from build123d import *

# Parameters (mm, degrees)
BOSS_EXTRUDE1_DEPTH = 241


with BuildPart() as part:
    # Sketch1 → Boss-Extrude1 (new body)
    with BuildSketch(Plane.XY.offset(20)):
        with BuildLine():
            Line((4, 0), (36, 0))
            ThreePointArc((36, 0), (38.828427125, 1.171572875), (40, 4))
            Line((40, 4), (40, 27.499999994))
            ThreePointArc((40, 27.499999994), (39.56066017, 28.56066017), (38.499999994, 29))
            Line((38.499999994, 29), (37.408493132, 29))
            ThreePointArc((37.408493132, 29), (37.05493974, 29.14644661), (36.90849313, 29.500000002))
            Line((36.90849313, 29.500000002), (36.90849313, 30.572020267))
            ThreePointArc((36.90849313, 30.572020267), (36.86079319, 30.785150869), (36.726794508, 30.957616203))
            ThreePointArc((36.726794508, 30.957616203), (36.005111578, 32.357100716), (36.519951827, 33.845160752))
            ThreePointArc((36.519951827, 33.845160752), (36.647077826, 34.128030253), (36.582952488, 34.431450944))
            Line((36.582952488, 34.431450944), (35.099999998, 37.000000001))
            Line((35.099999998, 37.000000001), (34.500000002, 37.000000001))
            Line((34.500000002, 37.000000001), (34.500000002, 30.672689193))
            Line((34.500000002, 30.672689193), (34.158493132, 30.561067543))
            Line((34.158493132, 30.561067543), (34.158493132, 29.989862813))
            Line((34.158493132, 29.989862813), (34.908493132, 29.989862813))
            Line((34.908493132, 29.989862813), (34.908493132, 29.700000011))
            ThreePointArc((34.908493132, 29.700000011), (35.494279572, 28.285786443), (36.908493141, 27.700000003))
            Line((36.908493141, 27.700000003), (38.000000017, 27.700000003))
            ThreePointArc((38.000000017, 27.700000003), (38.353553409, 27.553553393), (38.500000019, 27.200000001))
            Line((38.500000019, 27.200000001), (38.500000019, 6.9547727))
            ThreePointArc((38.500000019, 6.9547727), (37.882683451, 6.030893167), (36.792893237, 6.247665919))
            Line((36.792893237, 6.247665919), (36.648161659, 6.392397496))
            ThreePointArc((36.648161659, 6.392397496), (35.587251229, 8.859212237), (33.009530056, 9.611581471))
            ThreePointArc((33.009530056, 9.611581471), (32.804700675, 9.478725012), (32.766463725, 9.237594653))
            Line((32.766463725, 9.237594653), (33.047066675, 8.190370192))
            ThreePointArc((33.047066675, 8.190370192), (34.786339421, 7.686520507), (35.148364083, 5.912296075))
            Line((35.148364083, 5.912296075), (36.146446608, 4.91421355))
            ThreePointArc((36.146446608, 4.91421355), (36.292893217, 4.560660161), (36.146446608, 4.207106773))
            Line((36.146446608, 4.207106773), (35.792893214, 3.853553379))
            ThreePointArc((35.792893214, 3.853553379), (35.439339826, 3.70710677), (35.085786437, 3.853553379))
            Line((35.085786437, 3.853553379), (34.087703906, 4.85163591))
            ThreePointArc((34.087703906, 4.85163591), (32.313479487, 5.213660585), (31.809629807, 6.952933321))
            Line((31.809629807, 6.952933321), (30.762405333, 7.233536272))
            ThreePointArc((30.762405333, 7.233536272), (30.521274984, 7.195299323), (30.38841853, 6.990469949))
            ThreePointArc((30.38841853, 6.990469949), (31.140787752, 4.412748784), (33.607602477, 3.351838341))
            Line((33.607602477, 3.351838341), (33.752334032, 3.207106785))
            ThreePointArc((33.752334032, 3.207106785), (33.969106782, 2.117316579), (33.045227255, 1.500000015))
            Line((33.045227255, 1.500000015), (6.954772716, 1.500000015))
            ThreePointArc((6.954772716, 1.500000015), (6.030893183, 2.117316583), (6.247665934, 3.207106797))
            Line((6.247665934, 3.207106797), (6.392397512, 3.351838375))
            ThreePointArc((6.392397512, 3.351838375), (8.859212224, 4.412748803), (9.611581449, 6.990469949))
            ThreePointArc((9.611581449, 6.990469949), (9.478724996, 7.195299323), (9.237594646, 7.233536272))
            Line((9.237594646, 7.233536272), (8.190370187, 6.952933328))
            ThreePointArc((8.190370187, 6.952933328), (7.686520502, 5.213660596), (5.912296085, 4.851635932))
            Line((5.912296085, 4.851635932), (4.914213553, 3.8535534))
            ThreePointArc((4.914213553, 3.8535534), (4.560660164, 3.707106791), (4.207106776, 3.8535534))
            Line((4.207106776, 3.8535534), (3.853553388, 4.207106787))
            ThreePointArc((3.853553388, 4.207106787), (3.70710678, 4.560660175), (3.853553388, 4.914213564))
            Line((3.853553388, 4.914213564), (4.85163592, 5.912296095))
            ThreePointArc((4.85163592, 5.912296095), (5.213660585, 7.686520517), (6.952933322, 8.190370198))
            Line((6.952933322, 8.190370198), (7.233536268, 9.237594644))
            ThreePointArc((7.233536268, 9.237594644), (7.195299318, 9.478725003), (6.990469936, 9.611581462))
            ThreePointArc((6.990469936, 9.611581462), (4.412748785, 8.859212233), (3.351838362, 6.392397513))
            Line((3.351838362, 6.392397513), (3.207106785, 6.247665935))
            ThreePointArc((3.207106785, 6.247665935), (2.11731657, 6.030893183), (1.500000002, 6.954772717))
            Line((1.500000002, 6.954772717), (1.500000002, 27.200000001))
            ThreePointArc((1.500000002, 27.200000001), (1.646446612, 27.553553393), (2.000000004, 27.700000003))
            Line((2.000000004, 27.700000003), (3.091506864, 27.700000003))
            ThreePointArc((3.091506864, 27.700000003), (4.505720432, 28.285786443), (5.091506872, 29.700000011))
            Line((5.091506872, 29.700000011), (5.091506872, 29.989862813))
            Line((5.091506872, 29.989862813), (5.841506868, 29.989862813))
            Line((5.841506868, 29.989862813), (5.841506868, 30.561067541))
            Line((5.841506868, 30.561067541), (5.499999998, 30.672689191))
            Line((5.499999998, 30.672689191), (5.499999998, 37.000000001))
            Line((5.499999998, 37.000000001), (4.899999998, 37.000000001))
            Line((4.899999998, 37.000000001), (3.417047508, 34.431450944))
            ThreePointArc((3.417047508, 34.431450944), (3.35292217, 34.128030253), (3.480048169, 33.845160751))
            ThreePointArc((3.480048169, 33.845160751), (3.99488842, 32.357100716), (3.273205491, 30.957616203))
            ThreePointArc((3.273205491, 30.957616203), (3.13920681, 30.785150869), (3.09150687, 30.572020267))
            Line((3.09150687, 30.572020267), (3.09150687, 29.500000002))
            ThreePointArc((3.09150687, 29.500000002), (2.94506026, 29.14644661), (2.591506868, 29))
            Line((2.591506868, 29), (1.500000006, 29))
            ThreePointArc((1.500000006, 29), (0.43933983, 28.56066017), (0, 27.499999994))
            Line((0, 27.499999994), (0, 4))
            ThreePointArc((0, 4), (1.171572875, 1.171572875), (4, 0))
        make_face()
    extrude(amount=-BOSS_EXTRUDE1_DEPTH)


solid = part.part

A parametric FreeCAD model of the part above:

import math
import FreeCAD as App
import Part
import Sketcher
from FreeCAD import Vector
Q = App.Units.Quantity

doc = App.newDocument("Part")
body = doc.addObject("PartDesign::Body", "Body")

# Sketch on XY plane
sketch1 = body.newObject("Sketcher::SketchObject", "Sketch")
sketch1.AttachmentSupport = (doc.getObject("XY_Plane"), [""])
sketch1.MapMode = "FlatFace"
sketch1.AttachmentOffset = App.Placement(Vector(0, 0, 20), App.Rotation())
sketch1.addGeometry([
    Part.LineSegment(Vector(4, 0, 0), Vector(36, 0, 0)),  # 0
    Part.ArcOfCircle(Part.Circle(Vector(36, 4, 0), Vector(0, 0, 1), 4), math.radians(-90), math.radians(0)),  # 1
    Part.LineSegment(Vector(40, 4, 0), Vector(40, 27.5, 0)),  # 2
    Part.ArcOfCircle(Part.Circle(Vector(38.5, 27.5, 0), Vector(0, 0, 1), 1.5), math.radians(0), math.radians(90)),  # 3
    Part.LineSegment(Vector(38.5, 29, 0), Vector(37.41, 29, 0)),  # 4
    Part.ArcOfCircle(Part.Circle(Vector(37.41, 29.5, 0), Vector(0, 0, 1), 0.5), math.radians(180), math.radians(270)),  # 5
    Part.LineSegment(Vector(36.91, 29.5, 0), Vector(36.91, 30.57, 0)),  # 6
    Part.ArcOfCircle(Part.Circle(Vector(36.41, 30.57, 0), Vector(0, 0, 1), 0.5), math.radians(0), math.radians(50)),  # 7
    Part.ArcOfCircle(Part.Circle(Vector(38, 32.5, 0), Vector(0, 0, 1), 2), math.radians(138), math.radians(230)),  # 8
    Part.ArcOfCircle(Part.Circle(Vector(36.15, 34.18, 0), Vector(0, 0, 1), 0.5), math.radians(-42), math.radians(30)),  # 9
    Part.LineSegment(Vector(36.58, 34.43, 0), Vector(35.1, 37, 0)),  # 10
    Part.LineSegment(Vector(35.1, 37, 0), Vector(34.5, 37, 0)),  # 11
    Part.LineSegment(Vector(34.5, 37, 0), Vector(34.5, 30.67, 0)),  # 12
    Part.LineSegment(Vector(34.5, 30.67, 0), Vector(34.16, 30.56, 0)),  # 13
    Part.LineSegment(Vector(34.16, 30.56, 0), Vector(34.16, 29.99, 0)),  # 14
    Part.LineSegment(Vector(34.16, 29.99, 0), Vector(34.91, 29.99, 0)),  # 15
    Part.LineSegment(Vector(34.91, 29.99, 0), Vector(34.91, 29.7, 0)),  # 16
    Part.ArcOfCircle(Part.Circle(Vector(36.91, 29.7, 0), Vector(0, 0, 1), 2), math.radians(180), math.radians(270)),  # 17
    Part.LineSegment(Vector(36.91, 27.7, 0), Vector(38, 27.7, 0)),  # 18
    Part.ArcOfCircle(Part.Circle(Vector(38, 27.2, 0), Vector(0, 0, 1), 0.5), math.radians(0), math.radians(90)),  # 19
    Part.LineSegment(Vector(38.5, 27.2, 0), Vector(38.5, 6.95, 0)),  # 20
    Part.ArcOfCircle(Part.Circle(Vector(37.5, 6.95, 0), Vector(0, 0, 1), 1), math.radians(-135), math.radians(0)),  # 21
    Part.LineSegment(Vector(36.79, 6.25, 0), Vector(36.65, 6.39, 0)),  # 22
    Part.ArcOfCircle(Part.Circle(Vector(33.5, 6.5, 0), Vector(0, 0, 1), 3.15), math.radians(-2), math.radians(99)),  # 23
    Part.ArcOfCircle(Part.Circle(Vector(33.06, 9.32, 0), Vector(0, 0, 1), 0.3), math.radians(99), math.radians(195)),  # 24
    Part.LineSegment(Vector(32.77, 9.24, 0), Vector(33.05, 8.19, 0)),  # 25
    Part.ArcOfCircle(Part.Circle(Vector(33.5, 6.5, 0), Vector(0, 0, 1), 1.75), math.radians(-20), math.radians(105)),  # 26
    Part.LineSegment(Vector(35.15, 5.91, 0), Vector(36.15, 4.91, 0)),  # 27
    Part.ArcOfCircle(Part.Circle(Vector(35.79, 4.56, 0), Vector(0, 0, 1), 0.5), math.radians(-45), math.radians(45)),  # 28
    Part.LineSegment(Vector(36.15, 4.21, 0), Vector(35.79, 3.85, 0)),  # 29
    Part.ArcOfCircle(Part.Circle(Vector(35.44, 4.21, 0), Vector(0, 0, 1), 0.5), math.radians(-135), math.radians(-45)),  # 30
    Part.LineSegment(Vector(35.09, 3.85, 0), Vector(34.09, 4.85, 0)),  # 31
    Part.ArcOfCircle(Part.Circle(Vector(33.5, 6.5, 0), Vector(0, 0, 1), 1.75), math.radians(165), math.radians(290)),  # 32
    Part.LineSegment(Vector(31.81, 6.95, 0), Vector(30.76, 7.23, 0)),  # 33
    Part.ArcOfCircle(Part.Circle(Vector(30.68, 6.94, 0), Vector(0, 0, 1), 0.3), math.radians(75), math.radians(171)),  # 34
    Part.ArcOfCircle(Part.Circle(Vector(33.5, 6.5, 0), Vector(0, 0, 1), 3.15), math.radians(171), math.radians(272)),  # 35
    Part.LineSegment(Vector(33.61, 3.35, 0), Vector(33.75, 3.21, 0)),  # 36
    Part.ArcOfCircle(Part.Circle(Vector(33.05, 2.5, 0), Vector(0, 0, 1), 1), math.radians(-90), math.radians(45)),  # 37
    Part.LineSegment(Vector(33.05, 1.5, 0), Vector(6.95, 1.5, 0)),  # 38
    Part.ArcOfCircle(Part.Circle(Vector(6.95, 2.5, 0), Vector(0, 0, 1), 1), math.radians(135), math.radians(270)),  # 39
    Part.LineSegment(Vector(6.25, 3.21, 0), Vector(6.39, 3.35, 0)),  # 40
    Part.ArcOfCircle(Part.Circle(Vector(6.5, 6.5, 0), Vector(0, 0, 1), 3.15), math.radians(-92), math.radians(9)),  # 41
    Part.ArcOfCircle(Part.Circle(Vector(9.32, 6.94, 0), Vector(0, 0, 1), 0.3), math.radians(9), math.radians(105)),  # 42
    Part.LineSegment(Vector(9.24, 7.23, 0), Vector(8.19, 6.95, 0)),  # 43
    Part.ArcOfCircle(Part.Circle(Vector(6.5, 6.5, 0), Vector(0, 0, 1), 1.75), math.radians(-110), math.radians(15)),  # 44
    Part.LineSegment(Vector(5.91, 4.85, 0), Vector(4.91, 3.85, 0)),  # 45
    Part.ArcOfCircle(Part.Circle(Vector(4.56, 4.21, 0), Vector(0, 0, 1), 0.5), math.radians(-135), math.radians(-45)),  # 46
    Part.LineSegment(Vector(4.21, 3.85, 0), Vector(3.85, 4.21, 0)),  # 47
    Part.ArcOfCircle(Part.Circle(Vector(4.21, 4.56, 0), Vector(0, 0, 1), 0.5), math.radians(135), math.radians(225)),  # 48
    Part.LineSegment(Vector(3.85, 4.91, 0), Vector(4.85, 5.91, 0)),  # 49
    Part.ArcOfCircle(Part.Circle(Vector(6.5, 6.5, 0), Vector(0, 0, 1), 1.75), math.radians(75), math.radians(200)),  # 50
    Part.LineSegment(Vector(6.95, 8.19, 0), Vector(7.23, 9.24, 0)),  # 51
    Part.ArcOfCircle(Part.Circle(Vector(6.94, 9.32, 0), Vector(0, 0, 1), 0.3), math.radians(-15), math.radians(81)),  # 52
    Part.ArcOfCircle(Part.Circle(Vector(6.5, 6.5, 0), Vector(0, 0, 1), 3.15), math.radians(81), math.radians(182)),  # 53
    Part.LineSegment(Vector(3.35, 6.39, 0), Vector(3.21, 6.25, 0)),  # 54
    Part.ArcOfCircle(Part.Circle(Vector(2.5, 6.95, 0), Vector(0, 0, 1), 1), math.radians(180), math.radians(315)),  # 55
    Part.LineSegment(Vector(1.5, 6.95, 0), Vector(1.5, 27.2, 0)),  # 56
    Part.ArcOfCircle(Part.Circle(Vector(2, 27.2, 0), Vector(0, 0, 1), 0.5), math.radians(90), math.radians(180)),  # 57
    Part.LineSegment(Vector(2, 27.7, 0), Vector(3.09, 27.7, 0)),  # 58
    Part.ArcOfCircle(Part.Circle(Vector(3.09, 29.7, 0), Vector(0, 0, 1), 2), math.radians(-90), math.radians(0)),  # 59
    Part.LineSegment(Vector(5.09, 29.7, 0), Vector(5.09, 29.99, 0)),  # 60
    Part.LineSegment(Vector(5.09, 29.99, 0), Vector(5.84, 29.99, 0)),  # 61
    Part.LineSegment(Vector(5.84, 29.99, 0), Vector(5.84, 30.56, 0)),  # 62
    Part.LineSegment(Vector(5.84, 30.56, 0), Vector(5.5, 30.67, 0)),  # 63
    Part.LineSegment(Vector(5.5, 30.67, 0), Vector(5.5, 37, 0)),  # 64
    Part.LineSegment(Vector(5.5, 37, 0), Vector(4.9, 37, 0)),  # 65
    Part.LineSegment(Vector(4.9, 37, 0), Vector(3.42, 34.43, 0)),  # 66
    Part.ArcOfCircle(Part.Circle(Vector(3.85, 34.18, 0), Vector(0, 0, 1), 0.5), math.radians(150), math.radians(222)),  # 67
    Part.ArcOfCircle(Part.Circle(Vector(2, 32.5, 0), Vector(0, 0, 1), 2), math.radians(-50), math.radians(42)),  # 68
    Part.ArcOfCircle(Part.Circle(Vector(3.59, 30.57, 0), Vector(0, 0, 1), 0.5), math.radians(130), math.radians(180)),  # 69
    Part.LineSegment(Vector(3.09, 30.57, 0), Vector(3.09, 29.5, 0)),  # 70
    Part.ArcOfCircle(Part.Circle(Vector(2.59, 29.5, 0), Vector(0, 0, 1), 0.5), math.radians(-90), math.radians(0)),  # 71
    Part.LineSegment(Vector(2.59, 29, 0), Vector(1.5, 29, 0)),  # 72
    Part.ArcOfCircle(Part.Circle(Vector(1.5, 27.5, 0), Vector(0, 0, 1), 1.5), math.radians(90), math.radians(180)),  # 73
    Part.LineSegment(Vector(0, 27.5, 0), Vector(0, 4, 0)),  # 74
    Part.ArcOfCircle(Part.Circle(Vector(4, 4, 0), Vector(0, 0, 1), 4), math.radians(180), math.radians(270)),  # 75
], False)
sketch1.addConstraint([
    Sketcher.Constraint("Tangent", 0, 2, 1, 1),
    Sketcher.Constraint("Tangent", 1, 2, 2, 1),
    Sketcher.Constraint("Tangent", 2, 2, 3, 1),
    Sketcher.Constraint("Tangent", 3, 2, 4, 1),
    Sketcher.Constraint("Tangent", 4, 2, 5, 2),
    Sketcher.Constraint("Tangent", 5, 1, 6, 1),
    Sketcher.Constraint("Tangent", 6, 2, 7, 1),
    Sketcher.Constraint("Tangent", 7, 2, 8, 2),
    Sketcher.Constraint("Tangent", 8, 1, 9, 1),
    Sketcher.Constraint("Tangent", 9, 2, 10, 1),
    Sketcher.Constraint("Coincident", 10, 2, 11, 1),
    Sketcher.Constraint("Coincident", 11, 2, 12, 1),
    Sketcher.Constraint("Coincident", 12, 2, 13, 1),
    Sketcher.Constraint("Coincident", 13, 2, 14, 1),
    Sketcher.Constraint("Coincident", 14, 2, 15, 1),
    Sketcher.Constraint("Coincident", 15, 2, 16, 1),
    Sketcher.Constraint("Tangent", 16, 2, 17, 1),
    Sketcher.Constraint("Tangent", 17, 2, 18, 1),
    Sketcher.Constraint("Tangent", 18, 2, 19, 2),
    Sketcher.Constraint("Tangent", 19, 1, 20, 1),
    Sketcher.Constraint("Tangent", 20, 2, 21, 2),
    Sketcher.Constraint("Tangent", 21, 1, 22, 1),
    Sketcher.Constraint("Coincident", 22, 2, 23, 1),
    Sketcher.Constraint("Tangent", 23, 2, 24, 1),
    Sketcher.Constraint("Tangent", 24, 2, 25, 1),
    Sketcher.Constraint("Coincident", 25, 2, 26, 2),
    Sketcher.Constraint("Coincident", 26, 1, 27, 1),
    Sketcher.Constraint("Tangent", 27, 2, 28, 2),
    Sketcher.Constraint("Tangent", 28, 1, 29, 1),
    Sketcher.Constraint("Tangent", 29, 2, 30, 2),
    Sketcher.Constraint("Tangent", 30, 1, 31, 1),
    Sketcher.Constraint("Coincident", 31, 2, 32, 2),
    Sketcher.Constraint("Coincident", 32, 1, 33, 1),
    Sketcher.Constraint("Tangent", 33, 2, 34, 1),
    Sketcher.Constraint("Tangent", 34, 2, 35, 1),
    Sketcher.Constraint("Coincident", 35, 2, 36, 1),
    Sketcher.Constraint("Tangent", 36, 2, 37, 2),
    Sketcher.Constraint("Tangent", 37, 1, 38, 1),
    Sketcher.Constraint("Tangent", 38, 2, 39, 2),
    Sketcher.Constraint("Tangent", 39, 1, 40, 1),
    Sketcher.Constraint("Coincident", 40, 2, 41, 1),
    Sketcher.Constraint("Tangent", 41, 2, 42, 1),
    Sketcher.Constraint("Tangent", 42, 2, 43, 1),
    Sketcher.Constraint("Coincident", 43, 2, 44, 2),
    Sketcher.Constraint("Coincident", 44, 1, 45, 1),
    Sketcher.Constraint("Tangent", 45, 2, 46, 2),
    Sketcher.Constraint("Tangent", 46, 1, 47, 1),
    Sketcher.Constraint("Tangent", 47, 2, 48, 2),
    Sketcher.Constraint("Tangent", 48, 1, 49, 1),
    Sketcher.Constraint("Coincident", 49, 2, 50, 2),
    Sketcher.Constraint("Coincident", 50, 1, 51, 1),
    Sketcher.Constraint("Tangent", 51, 2, 52, 1),
    Sketcher.Constraint("Tangent", 52, 2, 53, 1),
    Sketcher.Constraint("Coincident", 53, 2, 54, 1),
    Sketcher.Constraint("Tangent", 54, 2, 55, 2),
    Sketcher.Constraint("Tangent", 55, 1, 56, 1),
    Sketcher.Constraint("Tangent", 56, 2, 57, 2),
    Sketcher.Constraint("Tangent", 57, 1, 58, 1),
    Sketcher.Constraint("Tangent", 58, 2, 59, 1),
    Sketcher.Constraint("Tangent", 59, 2, 60, 1),
    Sketcher.Constraint("Coincident", 60, 2, 61, 1),
    Sketcher.Constraint("Coincident", 61, 2, 62, 1),
    Sketcher.Constraint("Coincident", 62, 2, 63, 1),
    Sketcher.Constraint("Coincident", 63, 2, 64, 1),
    Sketcher.Constraint("Coincident", 64, 2, 65, 1),
    Sketcher.Constraint("Coincident", 65, 2, 66, 1),
    Sketcher.Constraint("Tangent", 66, 2, 67, 1),
    Sketcher.Constraint("Tangent", 67, 2, 68, 2),
    Sketcher.Constraint("Tangent", 68, 1, 69, 1),
    Sketcher.Constraint("Tangent", 69, 2, 70, 1),
    Sketcher.Constraint("Tangent", 70, 2, 71, 2),
    Sketcher.Constraint("Tangent", 71, 1, 72, 1),
    Sketcher.Constraint("Tangent", 72, 2, 73, 1),
    Sketcher.Constraint("Tangent", 73, 2, 74, 1),
    Sketcher.Constraint("Tangent", 74, 2, 75, 1),
    Sketcher.Constraint("Tangent", 75, 2, 0, 1),
    Sketcher.Constraint("Horizontal", 0),
    Sketcher.Constraint("Vertical", 2),
    Sketcher.Constraint("Horizontal", 4),
    Sketcher.Constraint("Vertical", 6),
    Sketcher.Constraint("Horizontal", 11),
    Sketcher.Constraint("Vertical", 12),
    Sketcher.Constraint("Vertical", 14),
    Sketcher.Constraint("Horizontal", 15),
    Sketcher.Constraint("Vertical", 16),
    Sketcher.Constraint("Horizontal", 18),
    Sketcher.Constraint("Vertical", 20),
    Sketcher.Constraint("Horizontal", 38),
    Sketcher.Constraint("Vertical", 56),
    Sketcher.Constraint("Horizontal", 58),
    Sketcher.Constraint("Vertical", 60),
    Sketcher.Constraint("Horizontal", 61),
    Sketcher.Constraint("Vertical", 62),
    Sketcher.Constraint("Vertical", 64),
    Sketcher.Constraint("Horizontal", 65),
    Sketcher.Constraint("Vertical", 70),
    Sketcher.Constraint("Horizontal", 72),
    Sketcher.Constraint("Vertical", 74),
    Sketcher.Constraint("Coincident", 26, 3, 23, 3),
    Sketcher.Constraint("Coincident", 32, 3, 23, 3),
    Sketcher.Constraint("Coincident", 35, 3, 23, 3),
    Sketcher.Constraint("Coincident", 44, 3, 41, 3),
    Sketcher.Constraint("Coincident", 50, 3, 41, 3),
    Sketcher.Constraint("Coincident", 53, 3, 41, 3),
    Sketcher.Constraint("Equal", 5, 7),
    Sketcher.Constraint("Equal", 7, 9),
    Sketcher.Constraint("Equal", 8, 17),
    Sketcher.Constraint("Equal", 9, 19),
    Sketcher.Constraint("Equal", 19, 28),
    Sketcher.Constraint("Equal", 28, 30),
    Sketcher.Constraint("Equal", 26, 32),
    Sketcher.Constraint("Equal", 24, 34),
    Sketcher.Constraint("Equal", 23, 35),
    Sketcher.Constraint("Equal", 21, 37),
    Sketcher.Constraint("Equal", 37, 39),
    Sketcher.Constraint("Equal", 35, 41),
    Sketcher.Constraint("Equal", 34, 42),
    Sketcher.Constraint("Equal", 32, 44),
    Sketcher.Constraint("Equal", 30, 46),
    Sketcher.Constraint("Equal", 46, 48),
    Sketcher.Constraint("Equal", 44, 50),
    Sketcher.Constraint("Equal", 42, 52),
    Sketcher.Constraint("Equal", 41, 53),
    Sketcher.Constraint("Equal", 39, 55),
    Sketcher.Constraint("Equal", 48, 57),
    Sketcher.Constraint("Equal", 17, 59),
    Sketcher.Constraint("Equal", 57, 67),
    Sketcher.Constraint("Equal", 59, 68),
    Sketcher.Constraint("Equal", 67, 69),
    Sketcher.Constraint("Equal", 69, 71),
    Sketcher.Constraint("Equal", 3, 73),
    Sketcher.Constraint("Equal", 1, 75),
    Sketcher.Constraint("PointOnObject", 0, 2, -1),
    Sketcher.Constraint("PointOnObject", 73, 2, -2),
    Sketcher.Constraint("Parallel", 22, 27),
    Sketcher.Constraint("Perpendicular", 27, 29),
    Sketcher.Constraint("Perpendicular", 29, 31),
    Sketcher.Constraint("Parallel", 31, 36),
    Sketcher.Constraint("Perpendicular", 36, 40),
    Sketcher.Constraint("Perpendicular", 25, 43),
    Sketcher.Constraint("Parallel", 40, 45),
    Sketcher.Constraint("Perpendicular", 45, 47),
    Sketcher.Constraint("Perpendicular", 47, 49),
    Sketcher.Constraint("Perpendicular", 33, 51),
    Sketcher.Constraint("Parallel", 49, 54),
    Sketcher.Constraint("Horizontal", 35, 3, 41, 3),
    Sketcher.Constraint("Horizontal", 34, 3, 42, 3),
    Sketcher.Constraint("Horizontal", 30, 3, 46, 3),
    Sketcher.Constraint("Horizontal", 28, 3, 48, 3),
    Sketcher.Constraint("Horizontal", 24, 3, 52, 3),
    Sketcher.Constraint("Horizontal", 21, 3, 55, 3),
    Sketcher.Constraint("Horizontal", 19, 3, 57, 3),
    Sketcher.Constraint("Horizontal", 9, 3, 67, 3),
    Sketcher.Constraint("Horizontal", 8, 3, 68, 3),
    Sketcher.Constraint("Horizontal", 7, 3, 69, 3),
    Sketcher.Constraint("Horizontal", 5, 3, 71, 3),
    Sketcher.Constraint("Horizontal", 46, 3, 28, 1),
    Sketcher.Constraint("Horizontal", 29, 2, 30, 1),
    Sketcher.Constraint("Horizontal", 35, 2, 40, 2),
    Sketcher.Constraint("Horizontal", 33, 2, 42, 2),
    Sketcher.Constraint("Horizontal", 31, 2, 44, 1),
    Sketcher.Constraint("Horizontal", 22, 2, 53, 2),
    Sketcher.Constraint("Horizontal", 15, 2, 60, 2),
    Sketcher.Constraint("Horizontal", 13, 2, 62, 2),
    Sketcher.Constraint("Horizontal", 12, 2, 63, 2),
    Sketcher.Constraint("Horizontal", 11, 2, 64, 2),
    Sketcher.Constraint("Horizontal", 9, 2, 66, 2),
    Sketcher.Constraint("Vertical", 8, 3, 19, 3),
    Sketcher.Constraint("Vertical", 57, 3, 68, 3),
    Sketcher.Constraint("Vertical", 17, 3, 5, 1),
    Sketcher.Constraint("Vertical", 3, 2, 19, 1),
    Sketcher.Constraint("Vertical", 73, 3, 55, 1),
    Sketcher.Constraint("Vertical", 58, 2, 69, 2),
    Sketcher.Constraint("Equal", 15, 61),
    Sketcher.Constraint("Equal", 11, 65),
    Sketcher.Constraint("Equal", 27, 31),
    Sketcher.Constraint("Equal", 25, 33),
    Sketcher.Constraint("Equal", 22, 36),
    Sketcher.Constraint("Radius", 1, Q("4 mm")),
    Sketcher.Constraint("Radius", 8, Q("2 mm")),
    Sketcher.Constraint("Radius", 21, Q("1 mm")),
    Sketcher.Constraint("Radius", 3, Q("1.5 mm")),
    Sketcher.Constraint("Radius", 5, Q("0.5 mm")),
    Sketcher.Constraint("Radius", 24, Q("0.3 mm")),
    Sketcher.Constraint("DistanceX", 0, 1, 0, 2, Q("32 mm")),
    Sketcher.Constraint("Angle", 10, Q("120 deg")),
    Sketcher.Constraint("Angle", 25, Q("-75 deg")),
    Sketcher.Constraint("Radius", 23, Q("3.15 mm")),
    Sketcher.Constraint("Radius", 26, Q("1.75 mm")),
    Sketcher.Constraint("DistanceX", 11, 2, 11, 1, Q("0.6 mm")),
    Sketcher.Constraint("DistanceY", 2, 1, 2, 2, Q("23.5 mm")),
    Sketcher.Constraint("DistanceY", -1, 1, 10, 2, Q("37 mm")),
    Sketcher.Constraint("Angle", 13, Q("-161.9 deg")),
    Sketcher.Constraint("DistanceX", 15, 1, 15, 2, Q("0.75 mm")),
    Sketcher.Constraint("DistanceY", -1, 1, 8, 3, Q("32.5 mm")),
    Sketcher.Constraint("DistanceY", -1, 1, 17, 3, Q("29.7 mm")),
    Sketcher.Constraint("DistanceX", -1, 1, 23, 3, Q("33.5 mm")),
    Sketcher.Constraint("DistanceY", -1, 1, 23, 3, Q("6.5 mm")),
    Sketcher.Constraint("DistanceY", -1, 1, 37, 3, Q("2.5 mm")),
    Sketcher.Constraint("DistanceX", -1, 1, 10, 2, Q("35.1 mm")),
    Sketcher.Constraint("Distance", 27, Q("1.411502 mm")),
    Sketcher.Constraint("DistanceY", 6, 1, 6, 2, Q("1.07202 mm")),
    Sketcher.Constraint("DistanceY", 12, 2, 12, 1, Q("6.327311 mm")),
    Sketcher.Constraint("Distance", 22, Q("0.204681 mm")),
    Sketcher.Constraint("DistanceY", 14, 2, 14, 1, Q("0.571205 mm")),
    Sketcher.Constraint("DistanceX", -1, 1, 24, 3, Q("33.056241 mm")),
])
pad1 = body.newObject("PartDesign::Pad", "Pad")
pad1.Profile = sketch1
pad1.Length = 241
pad1.Reversed = True

doc.recompute()
